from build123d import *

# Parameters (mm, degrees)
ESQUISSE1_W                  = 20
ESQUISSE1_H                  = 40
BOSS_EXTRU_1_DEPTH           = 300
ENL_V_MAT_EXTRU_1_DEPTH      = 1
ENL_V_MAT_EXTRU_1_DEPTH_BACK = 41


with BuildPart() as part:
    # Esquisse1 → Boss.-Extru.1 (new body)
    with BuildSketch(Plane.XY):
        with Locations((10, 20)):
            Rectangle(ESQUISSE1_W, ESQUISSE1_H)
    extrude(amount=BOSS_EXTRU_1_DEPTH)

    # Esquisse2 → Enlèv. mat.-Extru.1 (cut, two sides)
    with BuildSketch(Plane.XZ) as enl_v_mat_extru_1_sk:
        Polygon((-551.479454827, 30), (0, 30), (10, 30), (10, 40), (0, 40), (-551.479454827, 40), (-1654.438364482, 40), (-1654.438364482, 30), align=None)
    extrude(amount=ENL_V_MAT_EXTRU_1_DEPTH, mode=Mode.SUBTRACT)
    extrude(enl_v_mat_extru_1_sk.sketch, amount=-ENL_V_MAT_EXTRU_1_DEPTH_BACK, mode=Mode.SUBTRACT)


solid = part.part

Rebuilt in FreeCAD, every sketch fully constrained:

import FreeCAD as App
import Part
import Sketcher
Q = App.Units.Quantity

doc = App.newDocument("Part")
params = doc.addObject("Spreadsheet::Sheet", "Params")
for row, (alias, value) in enumerate([
    ("sketch1_width", "20 mm"),
    ("sketch1_height", "40 mm"),
    ("pad1_length", "300 mm"),
    ("sketch2_height", "10 mm"),
], start=1):
    params.set(f"A{row}", alias)
    params.set(f"B{row}", "=" + value)
    params.setAlias(f"B{row}", alias)

body = doc.addObject("PartDesign::Body", "Body")

# Sketch on XY plane
sketch1 = body.newObject("Sketcher::SketchObject", "Sketch")
sketch1.AttachmentSupport = (doc.getObject("XY_Plane"), [""])
sketch1.MapMode = "FlatFace"
sketch1.addGeometry(Part.LineSegment(App.Vector(0, 40, 0), App.Vector(0, 0, 0)), False)
sketch1.addGeometry(Part.LineSegment(App.Vector(0, 0, 0), App.Vector(20, 0, 0)), False)
sketch1.addGeometry(Part.LineSegment(App.Vector(20, 0, 0), App.Vector(20, 40, 0)), False)
sketch1.addGeometry(Part.LineSegment(App.Vector(20, 40, 0), App.Vector(0, 40, 0)), False)
sketch1.addConstraint(Sketcher.Constraint("Coincident", 0, 2, 1, 1))
sketch1.addConstraint(Sketcher.Constraint("Coincident", 1, 2, 2, 1))
sketch1.addConstraint(Sketcher.Constraint("Coincident", 2, 2, 3, 1))
sketch1.addConstraint(Sketcher.Constraint("Coincident", 3, 2, 0, 1))
sketch1.addConstraint(Sketcher.Constraint("Vertical", 0))
sketch1.addConstraint(Sketcher.Constraint("Horizontal", 1))
sketch1.addConstraint(Sketcher.Constraint("Vertical", 2))
sketch1.addConstraint(Sketcher.Constraint("Horizontal", 3))
sketch1.addConstraint(Sketcher.Constraint("Coincident", 0, 2, -1, 1))
sketch1.addConstraint(Sketcher.Constraint("DistanceX", 1, 1, 1, 2, Q("20 mm")))
sketch1.addConstraint(Sketcher.Constraint("DistanceY", 0, 2, 0, 1, Q("40 mm")))
sketch1.setExpression("Constraints[9]", "Params.sketch1_width")
sketch1.setExpression("Constraints[10]", "Params.sketch1_height")
pad1 = body.newObject("PartDesign::Pad", "Pad")
pad1.Profile = sketch1
pad1.setExpression("Length", "Params.pad1_length")

# Sketch on XZ plane
sketch2 = body.newObject("Sketcher::SketchObject", "Sketch001")
sketch2.AttachmentSupport = (doc.getObject("XZ_Plane"), [""])
sketch2.MapMode = "FlatFace"
sketch2.addGeometry(Part.LineSegment(App.Vector(10, 30, 0), App.Vector(10, 40, 0)), False)
sketch2.addGeometry(Part.LineSegment(App.Vector(10, 40, 0), App.Vector(-1654, 40, 0)), False)
sketch2.addGeometry(Part.LineSegment(App.Vector(-1654, 40, 0), App.Vector(-1654, 30, 0)), False)
sketch2.addGeometry(Part.LineSegment(App.Vector(-1654, 30, 0), App.Vector(10, 30, 0)), False)
sketch2.addConstraint(Sketcher.Constraint("Coincident", 0, 2, 1, 1))
sketch2.addConstraint(Sketcher.Constraint("Coincident", 1, 2, 2, 1))
sketch2.addConstraint(Sketcher.Constraint("Coincident", 2, 2, 3, 1))
sketch2.addConstraint(Sketcher.Constraint("Coincident", 3, 2, 0, 1))
sketch2.addConstraint(Sketcher.Constraint("Vertical", 0))
sketch2.addConstraint(Sketcher.Constraint("Horizontal", 1))
sketch2.addConstraint(Sketcher.Constraint("Vertical", 2))
sketch2.addConstraint(Sketcher.Constraint("Horizontal", 3))
sketch2.addConstraint(Sketcher.Constraint("DistanceY", 0, 1, 0, 2, Q("10 mm")))
sketch2.addConstraint(Sketcher.Constraint("DistanceX", -1, 1, 0, 2, Q("10 mm")))
sketch2.addConstraint(Sketcher.Constraint("DistanceY", -1, 1, 0, 2, Q("40 mm")))
sketch2.addConstraint(Sketcher.Constraint("DistanceX", 1, 2, 1, 1, Q("1664.438364 mm")))
sketch2.setExpression("Constraints[8]", "Params.sketch2_height")
pocket1 = body.newObject("PartDesign::Pocket", "Pocket")
pocket1.Profile = sketch2
pocket1.Type = "ThroughAll"
pocket1.Midplane = True

doc.recompute()
